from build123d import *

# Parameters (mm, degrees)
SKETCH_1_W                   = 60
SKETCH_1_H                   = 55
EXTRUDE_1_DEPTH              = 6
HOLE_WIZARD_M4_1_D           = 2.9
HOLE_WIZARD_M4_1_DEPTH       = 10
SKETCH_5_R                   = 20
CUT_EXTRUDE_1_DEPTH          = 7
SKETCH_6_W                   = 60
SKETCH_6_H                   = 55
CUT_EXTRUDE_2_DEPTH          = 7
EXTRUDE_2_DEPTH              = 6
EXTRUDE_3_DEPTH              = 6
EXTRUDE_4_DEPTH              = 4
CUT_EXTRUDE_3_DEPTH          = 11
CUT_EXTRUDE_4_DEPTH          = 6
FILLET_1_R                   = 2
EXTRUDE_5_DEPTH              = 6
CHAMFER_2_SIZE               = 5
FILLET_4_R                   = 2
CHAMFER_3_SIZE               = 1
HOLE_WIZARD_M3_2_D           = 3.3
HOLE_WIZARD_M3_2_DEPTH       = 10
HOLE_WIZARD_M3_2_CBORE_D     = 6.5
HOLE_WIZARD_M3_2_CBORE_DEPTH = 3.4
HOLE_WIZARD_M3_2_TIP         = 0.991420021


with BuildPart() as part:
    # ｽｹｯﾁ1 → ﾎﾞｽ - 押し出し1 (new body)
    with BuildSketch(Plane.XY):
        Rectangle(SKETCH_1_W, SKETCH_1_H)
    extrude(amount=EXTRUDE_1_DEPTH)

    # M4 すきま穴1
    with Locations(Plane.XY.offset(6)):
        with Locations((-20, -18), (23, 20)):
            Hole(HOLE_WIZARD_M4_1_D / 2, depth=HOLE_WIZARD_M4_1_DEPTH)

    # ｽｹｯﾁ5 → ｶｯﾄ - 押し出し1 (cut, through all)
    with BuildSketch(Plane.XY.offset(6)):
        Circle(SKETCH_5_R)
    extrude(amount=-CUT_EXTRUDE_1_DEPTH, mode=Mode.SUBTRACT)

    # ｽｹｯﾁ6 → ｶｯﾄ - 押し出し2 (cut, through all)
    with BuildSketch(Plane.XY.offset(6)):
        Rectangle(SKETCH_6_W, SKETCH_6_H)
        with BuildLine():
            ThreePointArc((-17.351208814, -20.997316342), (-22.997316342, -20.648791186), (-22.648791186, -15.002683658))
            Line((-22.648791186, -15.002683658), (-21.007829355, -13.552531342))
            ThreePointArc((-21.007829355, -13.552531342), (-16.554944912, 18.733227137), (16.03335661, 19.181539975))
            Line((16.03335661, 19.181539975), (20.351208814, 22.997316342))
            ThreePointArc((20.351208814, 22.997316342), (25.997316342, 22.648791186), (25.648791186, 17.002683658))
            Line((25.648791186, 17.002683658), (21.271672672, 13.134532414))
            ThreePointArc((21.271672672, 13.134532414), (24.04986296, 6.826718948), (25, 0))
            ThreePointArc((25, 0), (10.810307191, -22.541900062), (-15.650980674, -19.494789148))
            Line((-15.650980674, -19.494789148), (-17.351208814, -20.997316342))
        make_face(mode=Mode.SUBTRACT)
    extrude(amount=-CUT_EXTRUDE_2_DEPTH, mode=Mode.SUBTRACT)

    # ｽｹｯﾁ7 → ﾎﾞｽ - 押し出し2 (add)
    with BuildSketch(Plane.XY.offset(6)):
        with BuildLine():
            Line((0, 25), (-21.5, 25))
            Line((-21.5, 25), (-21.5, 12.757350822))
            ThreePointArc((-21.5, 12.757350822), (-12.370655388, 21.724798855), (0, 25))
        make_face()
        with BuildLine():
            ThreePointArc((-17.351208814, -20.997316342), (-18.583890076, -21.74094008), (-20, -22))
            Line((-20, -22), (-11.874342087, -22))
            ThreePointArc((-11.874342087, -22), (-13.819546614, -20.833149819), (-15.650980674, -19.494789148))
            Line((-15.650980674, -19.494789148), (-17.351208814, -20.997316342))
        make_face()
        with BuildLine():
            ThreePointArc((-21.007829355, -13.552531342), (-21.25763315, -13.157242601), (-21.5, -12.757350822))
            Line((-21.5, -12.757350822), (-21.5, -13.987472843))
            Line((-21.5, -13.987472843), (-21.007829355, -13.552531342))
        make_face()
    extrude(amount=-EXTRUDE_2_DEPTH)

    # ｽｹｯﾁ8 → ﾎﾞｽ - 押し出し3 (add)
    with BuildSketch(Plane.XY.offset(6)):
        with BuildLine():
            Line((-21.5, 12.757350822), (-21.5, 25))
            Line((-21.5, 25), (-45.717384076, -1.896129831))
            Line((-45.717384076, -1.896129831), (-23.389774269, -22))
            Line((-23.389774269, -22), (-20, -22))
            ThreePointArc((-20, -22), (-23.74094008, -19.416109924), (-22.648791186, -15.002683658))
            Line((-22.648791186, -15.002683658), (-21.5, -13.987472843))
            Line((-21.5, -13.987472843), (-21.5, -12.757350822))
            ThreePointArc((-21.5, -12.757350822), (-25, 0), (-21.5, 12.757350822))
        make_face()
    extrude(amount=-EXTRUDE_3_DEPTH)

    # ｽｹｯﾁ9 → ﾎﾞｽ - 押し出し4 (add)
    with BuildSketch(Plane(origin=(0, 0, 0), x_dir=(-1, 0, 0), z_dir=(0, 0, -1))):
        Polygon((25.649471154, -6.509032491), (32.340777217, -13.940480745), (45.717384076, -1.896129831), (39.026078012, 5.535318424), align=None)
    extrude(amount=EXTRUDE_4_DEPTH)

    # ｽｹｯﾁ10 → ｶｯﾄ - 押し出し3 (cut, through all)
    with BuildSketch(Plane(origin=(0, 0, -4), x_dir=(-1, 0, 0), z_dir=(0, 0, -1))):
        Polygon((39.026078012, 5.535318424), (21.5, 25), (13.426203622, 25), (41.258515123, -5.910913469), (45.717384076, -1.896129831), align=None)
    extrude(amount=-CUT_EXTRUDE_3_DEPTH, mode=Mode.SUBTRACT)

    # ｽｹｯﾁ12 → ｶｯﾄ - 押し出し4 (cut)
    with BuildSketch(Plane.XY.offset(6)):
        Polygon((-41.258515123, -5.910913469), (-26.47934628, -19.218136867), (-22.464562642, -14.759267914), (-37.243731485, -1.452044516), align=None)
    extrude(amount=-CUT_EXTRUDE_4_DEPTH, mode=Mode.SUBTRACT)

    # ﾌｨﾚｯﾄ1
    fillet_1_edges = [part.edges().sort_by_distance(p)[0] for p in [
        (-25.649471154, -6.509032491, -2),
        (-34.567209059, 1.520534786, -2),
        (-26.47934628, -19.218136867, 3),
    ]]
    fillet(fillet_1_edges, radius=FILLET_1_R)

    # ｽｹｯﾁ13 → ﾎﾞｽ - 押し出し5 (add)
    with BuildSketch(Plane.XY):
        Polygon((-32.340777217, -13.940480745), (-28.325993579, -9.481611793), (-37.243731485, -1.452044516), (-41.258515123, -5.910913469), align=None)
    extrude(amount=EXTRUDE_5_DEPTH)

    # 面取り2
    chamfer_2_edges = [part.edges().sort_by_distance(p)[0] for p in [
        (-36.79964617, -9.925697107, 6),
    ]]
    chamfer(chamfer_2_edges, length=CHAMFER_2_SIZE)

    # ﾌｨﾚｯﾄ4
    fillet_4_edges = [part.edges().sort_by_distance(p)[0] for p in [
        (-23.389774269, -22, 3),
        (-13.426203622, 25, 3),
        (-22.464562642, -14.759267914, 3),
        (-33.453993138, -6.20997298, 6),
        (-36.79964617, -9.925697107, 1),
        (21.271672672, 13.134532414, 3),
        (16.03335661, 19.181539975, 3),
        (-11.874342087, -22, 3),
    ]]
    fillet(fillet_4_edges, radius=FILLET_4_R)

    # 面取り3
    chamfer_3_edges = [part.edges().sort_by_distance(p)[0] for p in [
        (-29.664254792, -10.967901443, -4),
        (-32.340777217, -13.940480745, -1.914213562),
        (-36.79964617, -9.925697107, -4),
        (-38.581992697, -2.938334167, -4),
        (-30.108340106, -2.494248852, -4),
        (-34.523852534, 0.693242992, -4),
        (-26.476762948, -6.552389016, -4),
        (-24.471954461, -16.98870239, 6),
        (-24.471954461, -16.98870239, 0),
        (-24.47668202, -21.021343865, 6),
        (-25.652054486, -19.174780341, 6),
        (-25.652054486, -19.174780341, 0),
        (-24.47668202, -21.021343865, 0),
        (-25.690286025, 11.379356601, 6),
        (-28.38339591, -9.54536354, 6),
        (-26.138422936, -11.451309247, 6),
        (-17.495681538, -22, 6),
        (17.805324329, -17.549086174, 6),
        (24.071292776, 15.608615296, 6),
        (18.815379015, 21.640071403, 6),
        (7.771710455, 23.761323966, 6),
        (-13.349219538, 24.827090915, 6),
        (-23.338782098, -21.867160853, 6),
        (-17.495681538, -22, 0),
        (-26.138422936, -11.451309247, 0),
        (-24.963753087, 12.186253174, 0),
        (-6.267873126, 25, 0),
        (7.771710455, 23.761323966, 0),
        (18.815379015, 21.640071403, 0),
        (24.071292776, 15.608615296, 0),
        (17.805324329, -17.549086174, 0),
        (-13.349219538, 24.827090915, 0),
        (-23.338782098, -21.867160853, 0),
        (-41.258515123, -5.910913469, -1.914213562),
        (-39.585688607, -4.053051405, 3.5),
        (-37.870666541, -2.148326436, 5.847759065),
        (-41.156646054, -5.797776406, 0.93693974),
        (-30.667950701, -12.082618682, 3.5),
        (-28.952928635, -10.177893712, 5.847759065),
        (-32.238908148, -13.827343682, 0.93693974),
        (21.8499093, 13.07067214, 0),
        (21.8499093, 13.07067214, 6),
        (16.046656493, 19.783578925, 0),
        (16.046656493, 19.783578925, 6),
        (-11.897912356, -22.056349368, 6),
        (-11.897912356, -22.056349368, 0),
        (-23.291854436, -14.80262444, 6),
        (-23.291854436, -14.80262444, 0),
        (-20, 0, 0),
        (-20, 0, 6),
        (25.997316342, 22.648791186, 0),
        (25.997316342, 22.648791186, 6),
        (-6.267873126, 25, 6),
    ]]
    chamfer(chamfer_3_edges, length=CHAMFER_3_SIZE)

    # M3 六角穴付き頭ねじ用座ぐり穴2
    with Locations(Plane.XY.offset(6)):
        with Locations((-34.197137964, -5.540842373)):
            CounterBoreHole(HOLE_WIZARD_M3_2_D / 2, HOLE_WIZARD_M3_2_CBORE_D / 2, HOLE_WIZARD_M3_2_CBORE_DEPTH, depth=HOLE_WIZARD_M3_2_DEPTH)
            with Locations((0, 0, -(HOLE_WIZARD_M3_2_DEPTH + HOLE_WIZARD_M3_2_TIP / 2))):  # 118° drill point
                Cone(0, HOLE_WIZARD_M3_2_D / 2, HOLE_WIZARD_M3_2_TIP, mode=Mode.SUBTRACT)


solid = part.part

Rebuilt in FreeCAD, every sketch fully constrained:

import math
import FreeCAD as App
import Part
import Sketcher

V = App.Vector
Q = App.Units.Quantity


def edges_at(feature, points):
    """Names of the edges that pass closest to the given points."""
    edges = feature.Shape.Edges
    near = lambda p: min(range(len(edges)), key=lambda i: edges[i].distToShape(Part.Vertex(*p))[0])
    return sorted({f"Edge{near(p) + 1}" for p in points})

doc = App.newDocument("Part")
body = doc.addObject("PartDesign::Body", "Body")

sketch1 = body.newObject("Sketcher::SketchObject", "Sketch")
sketch1.AttachmentSupport = (doc.getObject("XY_Plane"), [""])
sketch1.MapMode = "FlatFace"
sketch1.addGeometry([
    Part.LineSegment(V(-30, 27.5, 0), V(-30, -27.5, 0)),
    Part.LineSegment(V(-30, -27.5, 0), V(30, -27.5, 0)),
    Part.LineSegment(V(30, -27.5, 0), V(30, 27.5, 0)),
    Part.LineSegment(V(30, 27.5, 0), V(-30, 27.5, 0)),
], False)
sketch1.addConstraint([
    Sketcher.Constraint("Coincident", 0, 2, 1, 1),
    Sketcher.Constraint("Coincident", 1, 2, 2, 1),
    Sketcher.Constraint("Coincident", 2, 2, 3, 1),
    Sketcher.Constraint("Coincident", 3, 2, 0, 1),
    Sketcher.Constraint("Vertical", 0),
    Sketcher.Constraint("Horizontal", 1),
    Sketcher.Constraint("Vertical", 2),
    Sketcher.Constraint("Horizontal", 3),
    Sketcher.Constraint("Symmetric", 0, 2, 2, 2, -1, 1),
    Sketcher.Constraint("DistanceX", 1, 1, 1, 2, Q("60 mm")),
    Sketcher.Constraint("DistanceY", 0, 2, 0, 1, Q("55 mm")),
])
pad1 = body.newObject("PartDesign::Pad", "Pad")
pad1.Profile = sketch1
pad1.Length = 6

sketch2 = body.newObject("Sketcher::SketchObject", "Sketch001")
sketch2.AttachmentSupport = (doc.getObject("XY_Plane"), [""])
sketch2.MapMode = "FlatFace"
sketch2.AttachmentOffset = App.Placement(V(0, 0, 6), App.Rotation())
sketch2.addGeometry([
    Part.Circle(V(-20, -18, 0), V(0, 0, 1), 1.45),
    Part.Circle(V(23, 20, 0), V(0, 0, 1), 1.45),
], False)
sketch2.addConstraint([
    Sketcher.Constraint("Equal", 0, 1),
    Sketcher.Constraint("Diameter", 0, Q("2.9 mm")),
    Sketcher.Constraint("DistanceX", 0, 3, -1, 1, Q("20 mm")),
    Sketcher.Constraint("DistanceY", 0, 3, -1, 1, Q("18 mm")),
    Sketcher.Constraint("DistanceX", -1, 1, 1, 3, Q("23 mm")),
    Sketcher.Constraint("DistanceY", -1, 1, 1, 3, Q("20 mm")),
])
doc.recompute()
hole = body.newObject("PartDesign::Hole", "Hole")
hole.Profile = sketch2
hole.ThreadType = "None"
hole.Diameter = 2.9
hole.DepthType = "Dimension"
hole.Depth = 10
hole.DrillPoint = "Flat"

sketch3 = body.newObject("Sketcher::SketchObject", "Sketch002")
sketch3.AttachmentSupport = (doc.getObject("XY_Plane"), [""])
sketch3.MapMode = "FlatFace"
sketch3.AttachmentOffset = App.Placement(V(0, 0, 6), App.Rotation())
sketch3.addGeometry(Part.Circle(V(0, 0, 0), V(0, 0, 1), 20), False)
sketch3.addConstraint([
    Sketcher.Constraint("Coincident", 0, 3, -1, 1),
    Sketcher.Constraint("Diameter", 0, Q("40 mm")),
])
pocket1 = body.newObject("PartDesign::Pocket", "Pocket")
pocket1.Profile = sketch3
pocket1.Type = "ThroughAll"

sketch4 = body.newObject("Sketcher::SketchObject", "Sketch003")
sketch4.AttachmentSupport = (doc.getObject("XY_Plane"), [""])
sketch4.MapMode = "FlatFace"
sketch4.AttachmentOffset = App.Placement(V(0, 0, 6), App.Rotation())
sketch4.addGeometry([
    Part.LineSegment(V(-30, 27.5, 0), V(-30, -27.5, 0)),
    Part.LineSegment(V(-30, -27.5, 0), V(30, -27.5, 0)),
    Part.LineSegment(V(30, -27.5, 0), V(30, 27.5, 0)),
    Part.LineSegment(V(30, 27.5, 0), V(-30, 27.5, 0)),
    Part.LineSegment(V(-15.650981, -19.494789, 0), V(-17.351209, -20.997316, 0)),
    Part.ArcOfCircle(Part.Circle(V(-20, -18, 0), V(0, 0, 1), 4), math.radians(131.467705), math.radians(311.467705)),
    Part.LineSegment(V(-22.648791, -15.002684, 0), V(-21.007829, -13.552531, 0)),
    Part.ArcOfCircle(Part.Circle(V(0, 0, 0), V(0, 0, 1), 25), math.radians(50.108616), math.radians(212.826795)),
    Part.LineSegment(V(16.033357, 19.18154, 0), V(20.351209, 22.997316, 0)),
    Part.ArcOfCircle(Part.Circle(V(23, 20, 0), V(0, 0, 1), 4), math.radians(-48.532295), math.radians(131.467705)),
    Part.LineSegment(V(25.648791, 17.002684, 0), V(21.271673, 13.134532, 0)),
    Part.ArcOfCircle(Part.Circle(V(0, 0, 0), V(0, 0, 1), 25), math.radians(0), math.radians(31.693915)),
    Part.ArcOfCircle(Part.Circle(V(0, 0, 0), V(0, 0, 1), 25), math.radians(-128.758505), math.radians(0)),
], False)
sketch4.addConstraint([
    Sketcher.Constraint("Coincident", 0, 2, 1, 1),
    Sketcher.Constraint("Coincident", 1, 2, 2, 1),
    Sketcher.Constraint("Coincident", 2, 2, 3, 1),
    Sketcher.Constraint("Coincident", 3, 2, 0, 1),
    Sketcher.Constraint("Tangent", 4, 2, 5, 2),
    Sketcher.Constraint("Tangent", 5, 1, 6, 1),
    Sketcher.Constraint("Coincident", 6, 2, 7, 2),
    Sketcher.Constraint("Coincident", 7, 1, 8, 1),
    Sketcher.Constraint("Tangent", 8, 2, 9, 2),
    Sketcher.Constraint("Tangent", 9, 1, 10, 1),
    Sketcher.Constraint("Coincident", 10, 2, 11, 2),
    Sketcher.Constraint("Tangent", 11, 1, 12, 2),
    Sketcher.Constraint("Coincident", 12, 1, 4, 1),
    Sketcher.Constraint("Vertical", 0),
    Sketcher.Constraint("Horizontal", 1),
    Sketcher.Constraint("Vertical", 2),
    Sketcher.Constraint("Horizontal", 3),
    Sketcher.Constraint("Coincident", 7, 3, -1, 1),
    Sketcher.Constraint("Coincident", 11, 3, -1, 1),
    Sketcher.Constraint("Equal", 5, 9),
    Sketcher.Constraint("Equal", 7, 11),
    Sketcher.Constraint("Equal", 11, 12),
    Sketcher.Constraint("Symmetric", 0, 2, 2, 2, -1, 1),
    Sketcher.Constraint("PointOnObject", 11, 1, -1),
    Sketcher.Constraint("Parallel", 4, 6),
    Sketcher.Constraint("Parallel", 6, 8),
    Sketcher.Constraint("Parallel", 8, 10),
    Sketcher.Constraint("Radius", 5, Q("4 mm")),
    Sketcher.Constraint("Radius", 7, Q("25 mm")),
    Sketcher.Constraint("DistanceX", 1, 1, 1, 2, Q("60 mm")),
    Sketcher.Constraint("DistanceY", 0, 2, 0, 1, Q("55 mm")),
    Sketcher.Constraint("DistanceX", 5, 3, -1, 1, Q("20 mm")),
    Sketcher.Constraint("DistanceY", 5, 3, -1, 1, Q("18 mm")),
    Sketcher.Constraint("DistanceX", -1, 1, 9, 3, Q("23 mm")),
    Sketcher.Constraint("DistanceY", -1, 1, 9, 3, Q("20 mm")),
    Sketcher.Constraint("Distance", 4, Q("2.269001 mm")),
])
pocket2 = body.newObject("PartDesign::Pocket", "Pocket001")
pocket2.Profile = sketch4
pocket2.Type = "ThroughAll"

sketch5 = body.newObject("Sketcher::SketchObject", "Sketch004")
sketch5.AttachmentSupport = (doc.getObject("XY_Plane"), [""])
sketch5.MapMode = "FlatFace"
sketch5.AttachmentOffset = App.Placement(V(0, 0, 6), App.Rotation())
sketch5.addGeometry([
    Part.LineSegment(V(0, 25, 0), V(-21.5, 25, 0)),
    Part.LineSegment(V(-21.5, 25, 0), V(-21.5, 12.757351, 0)),
    Part.ArcOfCircle(Part.Circle(V(0, 0, 0), V(0, 0, 1), 25), math.radians(90), math.radians(149.316583)),
    Part.ArcOfCircle(Part.Circle(V(-20, -18, 0), V(0, 0, 1), 4), math.radians(-90), math.radians(-48.532295)),
    Part.LineSegment(V(-20, -22, 0), V(-11.874342, -22, 0)),
    Part.ArcOfCircle(Part.Circle(V(0, 0, 0), V(0, 0, 1), 25), math.radians(-128.758505), math.radians(-118.357637)),
    Part.LineSegment(V(-15.650981, -19.494789, 0), V(-17.351209, -20.997316, 0)),
    Part.ArcOfCircle(Part.Circle(V(-0.000001, -0.000001, 0), V(0, 0, 1), 24.999999), math.radians(-149.316583), math.radians(-147.173205)),
    Part.LineSegment(V(-21.5, -12.757351, 0), V(-21.5, -13.987473, 0)),
    Part.LineSegment(V(-21.5, -13.987473, 0), V(-21.007829, -13.552531, 0)),
], False)
sketch5.addConstraint([
    Sketcher.Constraint("Coincident", 0, 2, 1, 1),
    Sketcher.Constraint("Coincident", 1, 2, 2, 2),
    Sketcher.Constraint("Tangent", 2, 1, 0, 1),
    Sketcher.Constraint("Tangent", 3, 1, 4, 1),
    Sketcher.Constraint("Coincident", 4, 2, 5, 2),
    Sketcher.Constraint("Coincident", 5, 1, 6, 1),
    Sketcher.Constraint("Tangent", 6, 2, 3, 2),
    Sketcher.Constraint("Coincident", 7, 1, 8, 1),
    Sketcher.Constraint("Coincident", 8, 2, 9, 1),
    Sketcher.Constraint("Coincident", 9, 2, 7, 2),
    Sketcher.Constraint("Horizontal", 0),
    Sketcher.Constraint("Vertical", 1),
    Sketcher.Constraint("Horizontal", 4),
    Sketcher.Constraint("Vertical", 8),
    Sketcher.Constraint("Coincident", 2, 3, -1, 1),
    Sketcher.Constraint("Coincident", 5, 3, -1, 1),
    Sketcher.Constraint("Coincident", 7, 3, -1, 1),
    Sketcher.Constraint("Equal", 2, 5),
    Sketcher.Constraint("Equal", 5, 7),
    Sketcher.Constraint("Parallel", 6, 9),
    Sketcher.Constraint("Vertical", 1, 2, 7, 1),
    Sketcher.Constraint("Radius", 2, Q("25 mm")),
    Sketcher.Constraint("Radius", 3, Q("4 mm")),
    Sketcher.Constraint("DistanceX", 0, 2, 0, 1, Q("21.5 mm")),
    Sketcher.Constraint("DistanceX", 3, 3, -1, 1, Q("20 mm")),
    Sketcher.Constraint("DistanceY", 3, 3, -1, 1, Q("18 mm")),
    Sketcher.Constraint("Distance", 6, Q("2.269001 mm")),
    Sketcher.Constraint("DistanceY", 8, 2, 8, 1, Q("1.230122 mm")),
])
pad2 = body.newObject("PartDesign::Pad", "Pad001")
pad2.Profile = sketch5
pad2.Length = 6
pad2.Reversed = True

sketch6 = body.newObject("Sketcher::SketchObject", "Sketch005")
sketch6.AttachmentSupport = (doc.getObject("XY_Plane"), [""])
sketch6.MapMode = "FlatFace"
sketch6.AttachmentOffset = App.Placement(V(0, 0, 6), App.Rotation())
sketch6.addGeometry([
    Part.LineSegment(V(-21.5, 12.757351, 0), V(-21.5, 25, 0)),
    Part.LineSegment(V(-21.5, 25, 0), V(-45.717384, -1.89613, 0)),
    Part.LineSegment(V(-45.717384, -1.89613, 0), V(-23.389774, -22, 0)),
    Part.LineSegment(V(-23.389774, -22, 0), V(-20, -22, 0)),
    Part.ArcOfCircle(Part.Circle(V(-20, -18, 0), V(0, 0, 1), 4), math.radians(131.467705), math.radians(270)),
    Part.LineSegment(V(-22.648791, -15.002684, 0), V(-21.5, -13.987473, 0)),
    Part.LineSegment(V(-21.5, -13.987473, 0), V(-21.5, -12.757351, 0)),
    Part.ArcOfCircle(Part.Circle(V(0, 0, 0), V(0, 0, 1), 25), math.radians(149.316583), math.radians(210.683417)),
], False)
sketch6.addConstraint([
    Sketcher.Constraint("Coincident", 0, 2, 1, 1),
    Sketcher.Constraint("Coincident", 1, 2, 2, 1),
    Sketcher.Constraint("Coincident", 2, 2, 3, 1),
    Sketcher.Constraint("Tangent", 3, 2, 4, 2),
    Sketcher.Constraint("Tangent", 4, 1, 5, 1),
    Sketcher.Constraint("Coincident", 5, 2, 6, 1),
    Sketcher.Constraint("Coincident", 6, 2, 7, 2),
    Sketcher.Constraint("Coincident", 7, 1, 0, 1),
    Sketcher.Constraint("Vertical", 0),
    Sketcher.Constraint("Horizontal", 3),
    Sketcher.Constraint("Vertical", 6),
    Sketcher.Constraint("Coincident", 7, 3, -1, 1),
    Sketcher.Constraint("Perpendicular", 1, 2),
    Sketcher.Constraint("Vertical", 0, 2, 5, 2),
    Sketcher.Constraint("Radius", 4, Q("4 mm")),
    Sketcher.Constraint("Radius", 7, Q("25 mm")),
    Sketcher.Constraint("Angle", 1, Q("-132 deg")),
    Sketcher.Constraint("DistanceX", 4, 3, -1, 1, Q("20 mm")),
    Sketcher.Constraint("DistanceY", 4, 3, -1, 1, Q("18 mm")),
    Sketcher.Constraint("DistanceY", -1, 1, 0, 2, Q("25 mm")),
    Sketcher.Constraint("DistanceX", 0, 2, -1, 1, Q("21.5 mm")),
    Sketcher.Constraint("DistanceX", 3, 1, 3, 2, Q("3.389774 mm")),
    Sketcher.Constraint("DistanceY", 6, 1, 6, 2, Q("1.230122 mm")),
])
pad3 = body.newObject("PartDesign::Pad", "Pad002")
pad3.Profile = sketch6
pad3.Length = 6
pad3.Reversed = True

sketch7 = body.newObject("Sketcher::SketchObject", "Sketch006")
sketch7.AttachmentSupport = (doc.getObject("XY_Plane"), [""])
sketch7.MapMode = "FlatFace"
sketch7.addGeometry([
    Part.LineSegment(V(-25.649471, -6.509032, 0), V(-32.340777, -13.940481, 0)),
    Part.LineSegment(V(-32.340777, -13.940481, 0), V(-45.717384, -1.89613, 0)),
    Part.LineSegment(V(-45.717384, -1.89613, 0), V(-39.026078, 5.535318, 0)),
    Part.LineSegment(V(-39.026078, 5.535318, 0), V(-25.649471, -6.509032, 0)),
], False)
sketch7.addConstraint([
    Sketcher.Constraint("Coincident", 0, 2, 1, 1),
    Sketcher.Constraint("Coincident", 1, 2, 2, 1),
    Sketcher.Constraint("Coincident", 2, 2, 3, 1),
    Sketcher.Constraint("Coincident", 3, 2, 0, 1),
    Sketcher.Constraint("Perpendicular", 0, 1),
    Sketcher.Constraint("Perpendicular", 1, 2),
    Sketcher.Constraint("Perpendicular", 2, 3),
    Sketcher.Constraint("Angle", 0, Q("-132 deg")),
    Sketcher.Constraint("Distance", 0, Q("10 mm")),
    Sketcher.Constraint("Distance", 1, Q("18 mm")),
    Sketcher.Constraint("DistanceY", 0, 2, -1, 1, Q("13.940481 mm")),
    Sketcher.Constraint("DistanceX", 2, 2, -1, 1, Q("39.026078 mm")),
])
pad4 = body.newObject("PartDesign::Pad", "Pad003")
pad4.Profile = sketch7
pad4.Length = 4
pad4.Reversed = True

sketch8 = body.newObject("Sketcher::SketchObject", "Sketch007")
sketch8.AttachmentSupport = (doc.getObject("XY_Plane"), [""])
sketch8.MapMode = "FlatFace"
sketch8.AttachmentOffset = App.Placement(V(0, 0, -4), App.Rotation())
sketch8.addGeometry([
    Part.LineSegment(V(-39.026078, 5.535318, 0), V(-21.5, 25, 0)),
    Part.LineSegment(V(-21.5, 25, 0), V(-13.426204, 25, 0)),
    Part.LineSegment(V(-13.426204, 25, 0), V(-41.258515, -5.910913, 0)),
    Part.LineSegment(V(-41.258515, -5.910913, 0), V(-45.717384, -1.89613, 0)),
    Part.LineSegment(V(-45.717384, -1.89613, 0), V(-39.026078, 5.535318, 0)),
], False)
sketch8.addConstraint([
    Sketcher.Constraint("Coincident", 0, 2, 1, 1),
    Sketcher.Constraint("Coincident", 1, 2, 2, 1),
    Sketcher.Constraint("Coincident", 2, 2, 3, 1),
    Sketcher.Constraint("Coincident", 3, 2, 4, 1),
    Sketcher.Constraint("Coincident", 4, 2, 0, 1),
    Sketcher.Constraint("Horizontal", 1),
    Sketcher.Constraint("Parallel", 0, 2),
    Sketcher.Constraint("Perpendicular", 2, 3),
    Sketcher.Constraint("Perpendicular", 3, 4),
    Sketcher.Constraint("Angle", 0, Q("48 deg")),
    Sketcher.Constraint("Distance", 3, Q("6 mm")),
    Sketcher.Constraint("Distance", 4, Q("10 mm")),
    Sketcher.Constraint("DistanceY", -1, 1, 0, 2, Q("25 mm")),
    Sketcher.Constraint("DistanceX", 0, 2, -1, 1, Q("21.5 mm")),
    Sketcher.Constraint("DistanceY", 3, 2, -1, 1, Q("1.89613 mm")),
])
pocket3 = body.newObject("PartDesign::Pocket", "Pocket002")
pocket3.Profile = sketch8
pocket3.Type = "ThroughAll"
pocket3.Reversed = True

sketch9 = body.newObject("Sketcher::SketchObject", "Sketch008")
sketch9.AttachmentSupport = (doc.getObject("XY_Plane"), [""])
sketch9.MapMode = "FlatFace"
sketch9.AttachmentOffset = App.Placement(V(0, 0, 6), App.Rotation())
sketch9.addGeometry([
    Part.LineSegment(V(-41.258515, -5.910913, 0), V(-26.479346, -19.218137, 0)),
    Part.LineSegment(V(-26.479346, -19.218137, 0), V(-22.464563, -14.759268, 0)),
    Part.LineSegment(V(-22.464563, -14.759268, 0), V(-37.243731, -1.452045, 0)),
    Part.LineSegment(V(-37.243731, -1.452045, 0), V(-41.258515, -5.910913, 0)),
], False)
sketch9.addConstraint([
    Sketcher.Constraint("Coincident", 0, 2, 1, 1),
    Sketcher.Constraint("Coincident", 1, 2, 2, 1),
    Sketcher.Constraint("Coincident", 2, 2, 3, 1),
    Sketcher.Constraint("Coincident", 3, 2, 0, 1),
    Sketcher.Constraint("Perpendicular", 0, 1),
    Sketcher.Constraint("Perpendicular", 1, 2),
    Sketcher.Constraint("Perpendicular", 2, 3),
    Sketcher.Constraint("Angle", 0, Q("-42 deg")),
    Sketcher.Constraint("Distance", 1, Q("6 mm")),
    Sketcher.Constraint("DistanceX", 2, 2, -1, 1, Q("37.243731 mm")),
    Sketcher.Constraint("DistanceX", 2, 2, 1, 2, Q("14.779169 mm")),
    Sketcher.Constraint("DistanceY", 0, 2, -1, 1, Q("19.218137 mm")),
])
pocket4 = body.newObject("PartDesign::Pocket", "Pocket003")
pocket4.Profile = sketch9
pocket4.Length = 6
doc.recompute()

fillet = body.newObject("PartDesign::Fillet", "Fillet")
fillet.Base = (pocket4, edges_at(pocket4, [(-25.649, -6.509, -2), (-34.567, 1.521, -2), (-26.479, -19.218, 3)]))
fillet.Radius = 2

sketch10 = body.newObject("Sketcher::SketchObject", "Sketch009")
sketch10.AttachmentSupport = (doc.getObject("XY_Plane"), [""])
sketch10.MapMode = "FlatFace"
sketch10.addGeometry([
    Part.LineSegment(V(-32.340777, -13.940481, 0), V(-28.325994, -9.481612, 0)),
    Part.LineSegment(V(-28.325994, -9.481612, 0), V(-37.243731, -1.452045, 0)),
    Part.LineSegment(V(-37.243731, -1.452045, 0), V(-41.258515, -5.910913, 0)),
    Part.LineSegment(V(-41.258515, -5.910913, 0), V(-32.340777, -13.940481, 0)),
], False)
sketch10.addConstraint([
    Sketcher.Constraint("Coincident", 0, 2, 1, 1),
    Sketcher.Constraint("Coincident", 1, 2, 2, 1),
    Sketcher.Constraint("Coincident", 2, 2, 3, 1),
    Sketcher.Constraint("Coincident", 3, 2, 0, 1),
    Sketcher.Constraint("Perpendicular", 0, 1),
    Sketcher.Constraint("Perpendicular", 1, 2),
    Sketcher.Constraint("Perpendicular", 2, 3),
    Sketcher.Constraint("Angle", 0, Q("48 deg")),
    Sketcher.Constraint("Distance", 0, Q("6 mm")),
    Sketcher.Constraint("Distance", 1, Q("12 mm")),
    Sketcher.Constraint("DistanceY", 0, 2, -1, 1, Q("9.481612 mm")),
    Sketcher.Constraint("DistanceX", 1, 2, -1, 1, Q("37.243731 mm")),
])
pad5 = body.newObject("PartDesign::Pad", "Pad004")
pad5.Profile = sketch10
pad5.Length = 6
doc.recompute()

chamfer = body.newObject("PartDesign::Chamfer", "Chamfer")
chamfer.Base = (pad5, edges_at(pad5, [(-36.8, -9.926, 6)]))
chamfer.Size = 5
doc.recompute()

fillet2 = body.newObject("PartDesign::Fillet", "Fillet001")
fillet2.Base = (chamfer, edges_at(chamfer, [
    (-23.39, -22, 3),
    (-13.426, 25, 3),
    (-22.465, -14.759, 3),
    (-33.454, -6.21, 6),
    (-36.8, -9.926, 1),
    (21.272, 13.135, 3),
    (16.033, 19.182, 3),
    (-11.874, -22, 3),
]))
fillet2.Radius = 2
doc.recompute()

chamfer2 = body.newObject("PartDesign::Chamfer", "Chamfer001")
chamfer2.Base = (fillet2, edges_at(fillet2, [
    (-29.664, -10.968, -4),
    (-32.341, -13.94, -2),
    (-36.8, -9.926, -4),
    (-38.582, -2.938, -4),
    (-30.108, -2.494, -4),
    (-34.524, 0.693, -4),
    (-26.477, -6.552, -4),
    (-24.472, -16.989, 6),
    (-24.472, -16.989, 0),
    (-24.477, -21.021, 6),
    (-25.652, -19.175, 6),
    (-25.652, -19.175, 0),
    (-24.477, -21.021, 0),
    (-25.633, 11.443, 6),
    (-28.383, -9.545, 6),
    (-26.138, -11.451, 6),
    (-17.496, -22, 6),
    (13.013, -21.346, 6),
    (24.071, 15.609, 6),
    (18.815, 21.64, 6),
    (7.772, 23.761, 6),
    (-13.349, 24.827, 6),
    (-23.339, -21.867, 6),
    (-17.496, -22, 0),
    (-26.138, -11.451, 0),
    (-24.964, 12.186, 0),
    (-6.268, 25, 0),
    (7.772, 23.761, 0),
    (18.815, 21.64, 0),
    (24.071, 15.609, 0),
    (13.013, -21.346, 0),
    (-13.349, 24.827, 0),
    (-23.339, -21.867, 0),
    (-41.259, -5.911, -2),
    (-39.586, -4.053, 3.5),
    (-37.871, -2.148, 5.848),
    (-41.157, -5.798, 0.937),
    (-30.668, -12.083, 3.5),
    (-28.953, -10.178, 5.848),
    (-32.239, -13.827, 0.937),
    (21.85, 13.071, 0),
    (21.85, 13.071, 6),
    (16.047, 19.784, 0),
    (16.047, 19.784, 6),
    (-11.898, -22.056, 6),
    (-11.898, -22.056, 0),
    (-23.292, -14.803, 6),
    (-23.292, -14.803, 0),
    (-20, 0, 0),
    (-20, 0, 6),
    (25.997, 22.649, 0),
    (25.997, 22.649, 6),
    (-6.268, 25, 6),
]))
chamfer2.Size = 1

sketch11 = body.newObject("Sketcher::SketchObject", "Sketch010")
sketch11.AttachmentSupport = (doc.getObject("XY_Plane"), [""])
sketch11.MapMode = "FlatFace"
sketch11.AttachmentOffset = App.Placement(V(0, 0, 6), App.Rotation())
sketch11.addGeometry(Part.Circle(V(-34.197138, -5.540842, 0), V(0, 0, 1), 1.65), False)
sketch11.addConstraint([
    Sketcher.Constraint("Diameter", 0, Q("3.3 mm")),
    Sketcher.Constraint("DistanceX", 0, 3, -1, 1, Q("34.197138 mm")),
    Sketcher.Constraint("DistanceY", 0, 3, -1, 1, Q("5.540842 mm")),
])
doc.recompute()
hole2 = body.newObject("PartDesign::Hole", "Hole001")
hole2.Profile = sketch11
hole2.ThreadType = "None"
hole2.Diameter = 3.3
hole2.DepthType = "Dimension"
hole2.Depth = 10
hole2.DrillPoint = "Angled"
hole2.DrillPointAngle = 118
hole2.HoleCutType = "Counterbore"
hole2.HoleCutDiameter = 6.5
hole2.HoleCutDepth = 3.4

doc.recompute()
